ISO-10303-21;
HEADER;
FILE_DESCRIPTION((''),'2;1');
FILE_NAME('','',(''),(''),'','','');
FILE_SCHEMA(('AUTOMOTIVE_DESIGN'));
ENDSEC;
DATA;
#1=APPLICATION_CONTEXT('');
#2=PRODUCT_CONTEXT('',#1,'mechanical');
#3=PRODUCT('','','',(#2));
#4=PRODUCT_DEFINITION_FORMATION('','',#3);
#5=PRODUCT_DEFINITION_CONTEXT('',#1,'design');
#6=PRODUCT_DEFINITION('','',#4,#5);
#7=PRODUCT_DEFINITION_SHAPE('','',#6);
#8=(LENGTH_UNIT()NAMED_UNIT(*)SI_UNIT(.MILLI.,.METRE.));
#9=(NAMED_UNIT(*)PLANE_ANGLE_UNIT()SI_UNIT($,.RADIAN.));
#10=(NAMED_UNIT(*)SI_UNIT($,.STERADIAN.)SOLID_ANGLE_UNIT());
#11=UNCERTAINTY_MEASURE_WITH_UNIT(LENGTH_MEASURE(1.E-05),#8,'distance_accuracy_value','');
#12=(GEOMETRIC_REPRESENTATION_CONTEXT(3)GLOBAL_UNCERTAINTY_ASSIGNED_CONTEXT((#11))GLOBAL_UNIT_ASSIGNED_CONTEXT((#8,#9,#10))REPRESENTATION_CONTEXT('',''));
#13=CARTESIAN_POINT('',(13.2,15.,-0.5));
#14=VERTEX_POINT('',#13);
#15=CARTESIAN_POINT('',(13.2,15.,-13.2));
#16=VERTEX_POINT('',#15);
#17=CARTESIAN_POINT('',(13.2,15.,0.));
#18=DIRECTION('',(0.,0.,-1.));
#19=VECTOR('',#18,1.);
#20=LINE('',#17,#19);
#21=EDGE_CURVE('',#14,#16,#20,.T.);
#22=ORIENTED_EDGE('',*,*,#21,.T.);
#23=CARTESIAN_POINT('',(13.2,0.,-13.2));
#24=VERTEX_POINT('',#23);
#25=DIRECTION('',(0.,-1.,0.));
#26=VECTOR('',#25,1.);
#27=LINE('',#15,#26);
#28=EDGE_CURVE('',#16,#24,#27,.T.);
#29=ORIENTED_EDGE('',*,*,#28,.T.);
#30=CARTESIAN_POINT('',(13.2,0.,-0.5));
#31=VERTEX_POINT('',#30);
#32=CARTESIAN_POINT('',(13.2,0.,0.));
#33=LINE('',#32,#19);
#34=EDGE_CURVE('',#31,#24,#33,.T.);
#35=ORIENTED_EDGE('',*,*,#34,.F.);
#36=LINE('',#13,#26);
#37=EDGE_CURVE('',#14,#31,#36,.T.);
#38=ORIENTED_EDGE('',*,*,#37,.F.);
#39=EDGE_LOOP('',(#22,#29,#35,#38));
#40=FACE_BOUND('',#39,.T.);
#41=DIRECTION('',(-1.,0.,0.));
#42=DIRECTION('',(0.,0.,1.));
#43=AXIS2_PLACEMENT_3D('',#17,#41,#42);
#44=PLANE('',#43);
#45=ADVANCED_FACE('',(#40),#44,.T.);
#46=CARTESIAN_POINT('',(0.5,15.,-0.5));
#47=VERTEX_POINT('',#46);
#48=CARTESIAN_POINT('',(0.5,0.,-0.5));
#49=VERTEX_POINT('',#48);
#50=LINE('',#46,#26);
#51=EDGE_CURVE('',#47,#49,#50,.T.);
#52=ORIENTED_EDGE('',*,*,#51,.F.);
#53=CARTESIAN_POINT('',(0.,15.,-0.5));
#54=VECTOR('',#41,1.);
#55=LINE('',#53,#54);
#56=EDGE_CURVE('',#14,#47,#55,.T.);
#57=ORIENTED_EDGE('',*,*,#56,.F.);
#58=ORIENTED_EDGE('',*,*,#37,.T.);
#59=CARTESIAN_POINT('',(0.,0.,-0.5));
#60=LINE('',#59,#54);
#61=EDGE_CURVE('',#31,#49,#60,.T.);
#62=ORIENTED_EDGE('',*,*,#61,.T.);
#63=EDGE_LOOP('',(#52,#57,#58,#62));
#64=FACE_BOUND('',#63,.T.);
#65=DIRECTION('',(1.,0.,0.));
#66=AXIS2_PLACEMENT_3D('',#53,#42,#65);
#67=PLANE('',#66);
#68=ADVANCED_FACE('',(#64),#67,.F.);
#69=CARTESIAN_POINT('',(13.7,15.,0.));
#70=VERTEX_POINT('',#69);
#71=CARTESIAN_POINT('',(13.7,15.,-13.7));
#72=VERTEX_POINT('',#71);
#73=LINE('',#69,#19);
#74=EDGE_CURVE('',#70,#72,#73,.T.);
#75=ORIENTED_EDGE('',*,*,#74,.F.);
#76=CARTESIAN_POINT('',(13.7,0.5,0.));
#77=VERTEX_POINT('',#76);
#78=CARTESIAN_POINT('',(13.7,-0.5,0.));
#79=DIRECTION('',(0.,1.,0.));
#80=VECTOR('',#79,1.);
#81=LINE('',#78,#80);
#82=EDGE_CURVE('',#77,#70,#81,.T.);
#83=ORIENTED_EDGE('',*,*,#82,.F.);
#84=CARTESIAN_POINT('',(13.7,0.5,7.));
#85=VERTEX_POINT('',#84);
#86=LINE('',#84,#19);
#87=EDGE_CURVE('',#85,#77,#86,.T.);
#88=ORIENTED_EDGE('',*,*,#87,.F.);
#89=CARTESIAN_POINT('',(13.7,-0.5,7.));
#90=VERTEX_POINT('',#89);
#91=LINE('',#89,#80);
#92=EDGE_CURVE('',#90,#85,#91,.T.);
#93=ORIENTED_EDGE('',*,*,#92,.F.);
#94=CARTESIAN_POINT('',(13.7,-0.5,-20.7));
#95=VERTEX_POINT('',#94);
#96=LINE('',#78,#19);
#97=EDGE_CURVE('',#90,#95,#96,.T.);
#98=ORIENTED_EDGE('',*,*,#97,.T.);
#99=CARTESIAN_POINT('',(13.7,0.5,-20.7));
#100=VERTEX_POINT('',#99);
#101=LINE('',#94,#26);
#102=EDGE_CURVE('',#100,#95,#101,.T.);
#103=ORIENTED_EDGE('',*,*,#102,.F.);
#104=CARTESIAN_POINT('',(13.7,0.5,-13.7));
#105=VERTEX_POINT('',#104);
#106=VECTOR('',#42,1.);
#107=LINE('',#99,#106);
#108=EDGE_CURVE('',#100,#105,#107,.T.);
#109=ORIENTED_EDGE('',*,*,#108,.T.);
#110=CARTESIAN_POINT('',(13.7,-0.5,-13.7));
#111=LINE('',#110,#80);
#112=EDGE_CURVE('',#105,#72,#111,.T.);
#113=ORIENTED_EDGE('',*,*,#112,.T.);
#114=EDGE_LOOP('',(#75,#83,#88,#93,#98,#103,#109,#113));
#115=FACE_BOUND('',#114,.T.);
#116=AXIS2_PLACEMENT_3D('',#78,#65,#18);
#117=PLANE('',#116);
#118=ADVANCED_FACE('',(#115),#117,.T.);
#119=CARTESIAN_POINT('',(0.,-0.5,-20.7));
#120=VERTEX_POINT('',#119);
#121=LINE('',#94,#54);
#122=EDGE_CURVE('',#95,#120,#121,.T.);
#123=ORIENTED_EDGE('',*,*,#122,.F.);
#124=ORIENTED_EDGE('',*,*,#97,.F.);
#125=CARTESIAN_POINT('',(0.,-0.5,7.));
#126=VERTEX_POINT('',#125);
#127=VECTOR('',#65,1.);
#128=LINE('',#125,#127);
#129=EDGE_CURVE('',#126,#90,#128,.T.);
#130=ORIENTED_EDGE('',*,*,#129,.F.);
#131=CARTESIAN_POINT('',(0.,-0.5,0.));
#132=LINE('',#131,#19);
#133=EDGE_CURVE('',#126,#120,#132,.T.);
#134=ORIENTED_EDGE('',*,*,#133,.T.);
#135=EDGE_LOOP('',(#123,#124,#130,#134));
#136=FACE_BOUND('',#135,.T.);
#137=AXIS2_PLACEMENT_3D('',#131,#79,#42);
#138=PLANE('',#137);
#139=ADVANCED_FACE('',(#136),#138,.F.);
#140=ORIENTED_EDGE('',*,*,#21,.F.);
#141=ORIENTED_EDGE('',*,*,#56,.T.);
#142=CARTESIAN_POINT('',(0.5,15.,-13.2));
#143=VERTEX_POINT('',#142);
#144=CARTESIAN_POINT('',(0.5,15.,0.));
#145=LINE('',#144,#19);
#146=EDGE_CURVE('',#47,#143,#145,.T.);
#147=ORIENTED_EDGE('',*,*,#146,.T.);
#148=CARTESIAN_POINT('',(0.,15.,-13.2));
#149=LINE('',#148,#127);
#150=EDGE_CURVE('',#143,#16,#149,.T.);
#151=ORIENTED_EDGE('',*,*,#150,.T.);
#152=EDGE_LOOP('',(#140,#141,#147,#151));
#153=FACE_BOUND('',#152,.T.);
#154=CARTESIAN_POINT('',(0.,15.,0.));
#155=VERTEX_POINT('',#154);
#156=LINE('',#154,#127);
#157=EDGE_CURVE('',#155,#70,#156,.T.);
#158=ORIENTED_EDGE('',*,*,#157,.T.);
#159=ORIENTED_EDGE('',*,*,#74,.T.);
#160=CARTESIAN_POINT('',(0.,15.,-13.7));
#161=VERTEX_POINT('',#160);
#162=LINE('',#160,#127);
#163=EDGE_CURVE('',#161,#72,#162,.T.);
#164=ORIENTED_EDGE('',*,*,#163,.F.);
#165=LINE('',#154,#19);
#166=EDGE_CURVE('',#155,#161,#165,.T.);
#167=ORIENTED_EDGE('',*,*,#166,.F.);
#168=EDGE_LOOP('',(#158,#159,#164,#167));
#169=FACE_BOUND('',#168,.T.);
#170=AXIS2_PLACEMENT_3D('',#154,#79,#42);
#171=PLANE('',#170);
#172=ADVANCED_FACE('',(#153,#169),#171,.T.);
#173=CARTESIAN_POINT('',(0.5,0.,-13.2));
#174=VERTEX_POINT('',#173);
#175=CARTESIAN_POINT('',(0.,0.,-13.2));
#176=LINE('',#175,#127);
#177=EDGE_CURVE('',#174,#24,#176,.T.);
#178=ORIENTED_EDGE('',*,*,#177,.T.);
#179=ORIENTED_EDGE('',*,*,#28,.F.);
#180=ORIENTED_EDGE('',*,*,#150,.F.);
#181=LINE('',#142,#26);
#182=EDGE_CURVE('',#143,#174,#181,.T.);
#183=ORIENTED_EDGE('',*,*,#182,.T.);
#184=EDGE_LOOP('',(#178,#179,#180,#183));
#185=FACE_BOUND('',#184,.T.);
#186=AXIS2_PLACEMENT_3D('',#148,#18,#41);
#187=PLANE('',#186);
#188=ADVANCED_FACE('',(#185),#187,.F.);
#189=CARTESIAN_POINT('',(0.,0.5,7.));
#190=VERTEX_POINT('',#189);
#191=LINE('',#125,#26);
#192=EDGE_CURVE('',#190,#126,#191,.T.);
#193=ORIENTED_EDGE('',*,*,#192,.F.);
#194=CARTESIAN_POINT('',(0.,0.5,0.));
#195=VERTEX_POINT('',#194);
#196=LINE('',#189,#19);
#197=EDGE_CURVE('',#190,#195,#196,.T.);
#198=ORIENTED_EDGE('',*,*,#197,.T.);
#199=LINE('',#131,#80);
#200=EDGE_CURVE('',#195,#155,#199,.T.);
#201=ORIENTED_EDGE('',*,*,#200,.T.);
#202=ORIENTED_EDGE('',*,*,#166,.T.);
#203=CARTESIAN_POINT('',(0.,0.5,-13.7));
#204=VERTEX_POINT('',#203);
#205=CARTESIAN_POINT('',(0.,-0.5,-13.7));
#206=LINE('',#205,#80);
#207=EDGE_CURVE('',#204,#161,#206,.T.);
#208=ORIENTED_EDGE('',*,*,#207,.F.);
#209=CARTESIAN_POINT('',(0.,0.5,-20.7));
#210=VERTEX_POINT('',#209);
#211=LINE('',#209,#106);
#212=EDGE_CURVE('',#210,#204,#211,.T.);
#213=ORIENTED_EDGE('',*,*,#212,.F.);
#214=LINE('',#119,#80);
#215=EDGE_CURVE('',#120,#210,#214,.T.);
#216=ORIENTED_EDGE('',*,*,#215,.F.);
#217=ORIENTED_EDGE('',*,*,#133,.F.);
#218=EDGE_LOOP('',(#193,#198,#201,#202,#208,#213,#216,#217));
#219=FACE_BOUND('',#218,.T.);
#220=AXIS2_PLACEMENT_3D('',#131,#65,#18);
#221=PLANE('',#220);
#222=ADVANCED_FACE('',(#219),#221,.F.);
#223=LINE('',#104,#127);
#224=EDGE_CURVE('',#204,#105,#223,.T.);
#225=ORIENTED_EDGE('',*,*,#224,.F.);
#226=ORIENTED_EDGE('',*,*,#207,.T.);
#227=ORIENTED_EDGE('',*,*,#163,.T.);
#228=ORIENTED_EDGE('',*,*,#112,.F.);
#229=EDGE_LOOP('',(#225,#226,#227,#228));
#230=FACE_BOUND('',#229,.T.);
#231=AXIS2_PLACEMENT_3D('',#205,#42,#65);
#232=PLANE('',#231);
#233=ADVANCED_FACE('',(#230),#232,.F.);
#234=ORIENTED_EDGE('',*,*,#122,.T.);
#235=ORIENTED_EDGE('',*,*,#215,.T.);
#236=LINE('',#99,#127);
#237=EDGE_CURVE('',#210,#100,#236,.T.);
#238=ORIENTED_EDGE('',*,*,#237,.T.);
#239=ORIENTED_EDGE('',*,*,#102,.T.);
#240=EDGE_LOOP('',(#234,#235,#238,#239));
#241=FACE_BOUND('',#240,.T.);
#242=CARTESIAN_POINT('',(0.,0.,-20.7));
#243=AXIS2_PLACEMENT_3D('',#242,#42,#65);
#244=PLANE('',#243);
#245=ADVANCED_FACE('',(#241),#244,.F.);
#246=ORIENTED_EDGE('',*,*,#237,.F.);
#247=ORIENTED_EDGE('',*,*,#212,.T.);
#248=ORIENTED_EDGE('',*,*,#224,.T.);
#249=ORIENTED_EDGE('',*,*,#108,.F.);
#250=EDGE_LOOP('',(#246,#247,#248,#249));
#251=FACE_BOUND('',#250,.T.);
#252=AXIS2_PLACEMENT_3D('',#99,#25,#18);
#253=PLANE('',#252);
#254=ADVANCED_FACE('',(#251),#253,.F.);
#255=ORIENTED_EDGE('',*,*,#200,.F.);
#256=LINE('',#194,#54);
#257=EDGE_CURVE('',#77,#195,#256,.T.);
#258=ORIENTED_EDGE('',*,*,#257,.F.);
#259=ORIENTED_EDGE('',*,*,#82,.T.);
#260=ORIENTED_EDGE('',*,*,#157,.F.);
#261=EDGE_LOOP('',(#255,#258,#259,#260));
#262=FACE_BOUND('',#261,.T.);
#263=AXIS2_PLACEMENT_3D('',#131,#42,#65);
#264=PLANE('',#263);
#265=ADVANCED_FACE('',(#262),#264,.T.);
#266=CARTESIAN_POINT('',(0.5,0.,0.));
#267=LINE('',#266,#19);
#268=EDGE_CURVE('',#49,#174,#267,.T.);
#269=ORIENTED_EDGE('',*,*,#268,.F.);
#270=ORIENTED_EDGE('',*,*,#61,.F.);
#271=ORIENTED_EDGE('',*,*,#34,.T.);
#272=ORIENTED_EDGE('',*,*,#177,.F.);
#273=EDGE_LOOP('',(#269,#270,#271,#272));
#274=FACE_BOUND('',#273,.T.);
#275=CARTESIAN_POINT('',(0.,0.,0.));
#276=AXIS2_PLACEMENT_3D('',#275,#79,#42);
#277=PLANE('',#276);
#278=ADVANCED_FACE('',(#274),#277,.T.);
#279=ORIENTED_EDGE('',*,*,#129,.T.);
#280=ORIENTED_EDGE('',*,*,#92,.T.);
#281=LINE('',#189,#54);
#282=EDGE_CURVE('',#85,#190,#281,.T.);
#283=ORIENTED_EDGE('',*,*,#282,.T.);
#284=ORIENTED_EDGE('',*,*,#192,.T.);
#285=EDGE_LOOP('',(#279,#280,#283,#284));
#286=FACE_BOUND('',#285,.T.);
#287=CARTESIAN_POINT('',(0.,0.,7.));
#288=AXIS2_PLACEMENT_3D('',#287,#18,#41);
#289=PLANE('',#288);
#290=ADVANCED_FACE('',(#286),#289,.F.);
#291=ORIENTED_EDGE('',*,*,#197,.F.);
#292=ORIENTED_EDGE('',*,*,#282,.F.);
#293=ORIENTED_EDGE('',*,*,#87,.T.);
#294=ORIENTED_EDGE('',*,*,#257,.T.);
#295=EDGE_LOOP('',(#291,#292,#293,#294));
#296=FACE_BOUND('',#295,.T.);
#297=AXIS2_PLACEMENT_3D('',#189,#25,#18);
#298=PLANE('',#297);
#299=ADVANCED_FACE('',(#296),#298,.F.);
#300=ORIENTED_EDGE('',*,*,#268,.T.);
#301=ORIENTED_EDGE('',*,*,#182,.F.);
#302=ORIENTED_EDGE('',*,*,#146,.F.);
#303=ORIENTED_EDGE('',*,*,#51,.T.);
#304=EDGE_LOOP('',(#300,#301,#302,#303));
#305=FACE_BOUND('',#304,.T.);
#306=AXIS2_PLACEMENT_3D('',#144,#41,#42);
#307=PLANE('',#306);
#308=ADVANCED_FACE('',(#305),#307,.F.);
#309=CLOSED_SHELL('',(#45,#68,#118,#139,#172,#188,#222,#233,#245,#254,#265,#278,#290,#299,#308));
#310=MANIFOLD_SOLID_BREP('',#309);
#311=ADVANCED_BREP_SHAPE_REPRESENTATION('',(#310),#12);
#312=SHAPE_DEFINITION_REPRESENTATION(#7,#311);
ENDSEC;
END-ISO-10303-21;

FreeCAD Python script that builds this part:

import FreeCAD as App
import Part
import Sketcher
from FreeCAD import Vector
Q = App.Units.Quantity

doc = App.newDocument("Part")
params = doc.addObject("Spreadsheet::Sheet", "Params")
for row, (alias, value) in enumerate([
    ("sketch1_width", "13.7 mm"),
    ("pad1_length", "0.5 mm"),
    ("sketch2_width", "13.7 mm"),
    ("sketch2_width2", "12.7 mm"),
    ("pad2_length", "15 mm"),
    ("sketch3_height", "1 mm"),
    ("sketch3_width", "13.7 mm"),
    ("pad3_length", "7 mm"),
    ("sketch4_height", "1 mm"),
    ("sketch4_width", "13.7 mm"),
    ("pad4_length", "7 mm"),
], start=1):
    params.set(f"A{row}", alias)
    params.set(f"B{row}", "=" + value)
    params.setAlias(f"B{row}", alias)

body = doc.addObject("PartDesign::Body", "Body")

# Sketch on XZ plane
sketch1 = body.newObject("Sketcher::SketchObject", "Sketch")
sketch1.AttachmentSupport = (doc.getObject("XZ_Plane"), [""])
sketch1.MapMode = "FlatFace"
sketch1.addGeometry([
    Part.LineSegment(Vector(13.7, 0, 0), Vector(13.7, -13.7, 0)),
    Part.LineSegment(Vector(13.7, -13.7, 0), Vector(0, -13.7, 0)),
    Part.LineSegment(Vector(0, -13.7, 0), Vector(0, 0, 0)),
    Part.LineSegment(Vector(0, 0, 0), Vector(13.7, 0, 0)),
], False)
sketch1.addConstraint([
    Sketcher.Constraint("Coincident", 0, 2, 1, 1),
    Sketcher.Constraint("Coincident", 1, 2, 2, 1),
    Sketcher.Constraint("Coincident", 2, 2, 3, 1),
    Sketcher.Constraint("Coincident", 3, 2, 0, 1),
    Sketcher.Constraint("Vertical", 0),
    Sketcher.Constraint("Horizontal", 1),
    Sketcher.Constraint("Vertical", 2),
    Sketcher.Constraint("Horizontal", 3),
    Sketcher.Constraint("Coincident", 2, 2, -1, 1),
    Sketcher.Constraint("Equal", 3, 0),
    Sketcher.Constraint("DistanceX", 1, 2, 1, 1, Q("13.7 mm")),
])
sketch1.setExpression("Constraints[10]", "Params.sketch1_width")
pad1 = body.newObject("PartDesign::Pad", "Pad")
pad1.Profile = sketch1
pad1.setExpression("Length", "Params.pad1_length")

# Sketch on XZ plane
sketch2 = body.newObject("Sketcher::SketchObject", "Sketch001")
sketch2.AttachmentSupport = (doc.getObject("XZ_Plane"), [""])
sketch2.MapMode = "FlatFace"
sketch2.addGeometry([
    Part.LineSegment(Vector(0, -13.7, 0), Vector(0, 0, 0)),  # 0
    Part.LineSegment(Vector(0, 0, 0), Vector(13.7, 0, 0)),  # 1
    Part.LineSegment(Vector(13.7, 0, 0), Vector(13.7, -13.7, 0)),  # 2
    Part.LineSegment(Vector(13.7, -13.7, 0), Vector(0, -13.7, 0)),  # 3
    Part.LineSegment(Vector(0.5, -0.5, 0), Vector(0.5, -13.2, 0)),  # 4
    Part.LineSegment(Vector(0.5, -13.2, 0), Vector(13.2, -13.2, 0)),  # 5
    Part.LineSegment(Vector(13.2, -13.2, 0), Vector(13.2, -0.5, 0)),  # 6
    Part.LineSegment(Vector(13.2, -0.5, 0), Vector(0.5, -0.5, 0)),  # 7
], False)
sketch2.addConstraint([
    Sketcher.Constraint("Coincident", 0, 2, 1, 1),
    Sketcher.Constraint("Coincident", 1, 2, 2, 1),
    Sketcher.Constraint("Coincident", 2, 2, 3, 1),
    Sketcher.Constraint("Coincident", 3, 2, 0, 1),
    Sketcher.Constraint("Coincident", 4, 2, 5, 1),
    Sketcher.Constraint("Coincident", 5, 2, 6, 1),
    Sketcher.Constraint("Coincident", 6, 2, 7, 1),
    Sketcher.Constraint("Coincident", 7, 2, 4, 1),
    Sketcher.Constraint("Vertical", 0),
    Sketcher.Constraint("Horizontal", 1),
    Sketcher.Constraint("Vertical", 2),
    Sketcher.Constraint("Horizontal", 3),
    Sketcher.Constraint("Vertical", 4),
    Sketcher.Constraint("Horizontal", 5),
    Sketcher.Constraint("Vertical", 6),
    Sketcher.Constraint("Horizontal", 7),
    Sketcher.Constraint("Coincident", 0, 2, -1, 1),
    Sketcher.Constraint("Equal", 3, 0),
    Sketcher.Constraint("Equal", 7, 4),
    Sketcher.Constraint("DistanceX", 1, 1, 1, 2, Q("13.7 mm")),
    Sketcher.Constraint("DistanceX", 5, 1, 5, 2, Q("12.7 mm")),
    Sketcher.Constraint("DistanceX", -1, 1, 4, 2, Q("0.5 mm")),
    Sketcher.Constraint("DistanceY", 4, 2, -1, 1, Q("13.2 mm")),
])
sketch2.setExpression("Constraints[19]", "Params.sketch2_width")
sketch2.setExpression("Constraints[20]", "Params.sketch2_width2")
pad2 = body.newObject("PartDesign::Pad", "Pad001")
pad2.Profile = sketch2
pad2.setExpression("Length", "Params.pad2_length")
pad2.Reversed = True

# Sketch on XY plane
sketch3 = body.newObject("Sketcher::SketchObject", "Sketch002")
sketch3.AttachmentSupport = (doc.getObject("XY_Plane"), [""])
sketch3.MapMode = "FlatFace"
sketch3.addGeometry([
    Part.LineSegment(Vector(0, 0.5, 0), Vector(0, -0.5, 0)),
    Part.LineSegment(Vector(0, -0.5, 0), Vector(13.7, -0.5, 0)),
    Part.LineSegment(Vector(13.7, -0.5, 0), Vector(13.7, 0.5, 0)),
    Part.LineSegment(Vector(13.7, 0.5, 0), Vector(0, 0.5, 0)),
], False)
sketch3.addConstraint([
    Sketcher.Constraint("Coincident", 0, 2, 1, 1),
    Sketcher.Constraint("Coincident", 1, 2, 2, 1),
    Sketcher.Constraint("Coincident", 2, 2, 3, 1),
    Sketcher.Constraint("Coincident", 3, 2, 0, 1),
    Sketcher.Constraint("Vertical", 0),
    Sketcher.Constraint("Horizontal", 1),
    Sketcher.Constraint("Vertical", 2),
    Sketcher.Constraint("Horizontal", 3),
    Sketcher.Constraint("Symmetric", 0, 2, 3, 2, -1, 1),
    Sketcher.Constraint("DistanceY", 0, 2, 0, 1, Q("1 mm")),
    Sketcher.Constraint("DistanceX", 1, 1, 1, 2, Q("13.7 mm")),
])
sketch3.setExpression("Constraints[9]", "Params.sketch3_height")
sketch3.setExpression("Constraints[10]", "Params.sketch3_width")
pad3 = body.newObject("PartDesign::Pad", "Pad002")
pad3.Profile = sketch3
pad3.setExpression("Length", "Params.pad3_length")

# Sketch on XY plane
sketch4 = body.newObject("Sketcher::SketchObject", "Sketch003")
sketch4.AttachmentSupport = (doc.getObject("XY_Plane"), [""])
sketch4.MapMode = "FlatFace"
sketch4.AttachmentOffset = App.Placement(Vector(0, 0, -13.7), App.Rotation())
sketch4.addGeometry([
    Part.LineSegment(Vector(13.7, 0.5, 0), Vector(13.7, -0.5, 0)),
    Part.LineSegment(Vector(13.7, -0.5, 0), Vector(0, -0.5, 0)),
    Part.LineSegment(Vector(0, -0.5, 0), Vector(0, 0.5, 0)),
    Part.LineSegment(Vector(0, 0.5, 0), Vector(13.7, 0.5, 0)),
], False)
sketch4.addConstraint([
    Sketcher.Constraint("Coincident", 0, 2, 1, 1),
    Sketcher.Constraint("Coincident", 1, 2, 2, 1),
    Sketcher.Constraint("Coincident", 2, 2, 3, 1),
    Sketcher.Constraint("Coincident", 3, 2, 0, 1),
    Sketcher.Constraint("Vertical", 0),
    Sketcher.Constraint("Horizontal", 1),
    Sketcher.Constraint("Vertical", 2),
    Sketcher.Constraint("Horizontal", 3),
    Sketcher.Constraint("Symmetric", 1, 2, 2, 2, -1, 1),
    Sketcher.Constraint("DistanceY", 0, 2, 0, 1, Q("1 mm")),
    Sketcher.Constraint("DistanceX", 1, 2, 1, 1, Q("13.7 mm")),
])
sketch4.setExpression("Constraints[9]", "Params.sketch4_height")
sketch4.setExpression("Constraints[10]", "Params.sketch4_width")
pad4 = body.newObject("PartDesign::Pad", "Pad003")
pad4.Profile = sketch4
pad4.setExpression("Length", "Params.pad4_length")
pad4.Reversed = True

doc.recompute()
